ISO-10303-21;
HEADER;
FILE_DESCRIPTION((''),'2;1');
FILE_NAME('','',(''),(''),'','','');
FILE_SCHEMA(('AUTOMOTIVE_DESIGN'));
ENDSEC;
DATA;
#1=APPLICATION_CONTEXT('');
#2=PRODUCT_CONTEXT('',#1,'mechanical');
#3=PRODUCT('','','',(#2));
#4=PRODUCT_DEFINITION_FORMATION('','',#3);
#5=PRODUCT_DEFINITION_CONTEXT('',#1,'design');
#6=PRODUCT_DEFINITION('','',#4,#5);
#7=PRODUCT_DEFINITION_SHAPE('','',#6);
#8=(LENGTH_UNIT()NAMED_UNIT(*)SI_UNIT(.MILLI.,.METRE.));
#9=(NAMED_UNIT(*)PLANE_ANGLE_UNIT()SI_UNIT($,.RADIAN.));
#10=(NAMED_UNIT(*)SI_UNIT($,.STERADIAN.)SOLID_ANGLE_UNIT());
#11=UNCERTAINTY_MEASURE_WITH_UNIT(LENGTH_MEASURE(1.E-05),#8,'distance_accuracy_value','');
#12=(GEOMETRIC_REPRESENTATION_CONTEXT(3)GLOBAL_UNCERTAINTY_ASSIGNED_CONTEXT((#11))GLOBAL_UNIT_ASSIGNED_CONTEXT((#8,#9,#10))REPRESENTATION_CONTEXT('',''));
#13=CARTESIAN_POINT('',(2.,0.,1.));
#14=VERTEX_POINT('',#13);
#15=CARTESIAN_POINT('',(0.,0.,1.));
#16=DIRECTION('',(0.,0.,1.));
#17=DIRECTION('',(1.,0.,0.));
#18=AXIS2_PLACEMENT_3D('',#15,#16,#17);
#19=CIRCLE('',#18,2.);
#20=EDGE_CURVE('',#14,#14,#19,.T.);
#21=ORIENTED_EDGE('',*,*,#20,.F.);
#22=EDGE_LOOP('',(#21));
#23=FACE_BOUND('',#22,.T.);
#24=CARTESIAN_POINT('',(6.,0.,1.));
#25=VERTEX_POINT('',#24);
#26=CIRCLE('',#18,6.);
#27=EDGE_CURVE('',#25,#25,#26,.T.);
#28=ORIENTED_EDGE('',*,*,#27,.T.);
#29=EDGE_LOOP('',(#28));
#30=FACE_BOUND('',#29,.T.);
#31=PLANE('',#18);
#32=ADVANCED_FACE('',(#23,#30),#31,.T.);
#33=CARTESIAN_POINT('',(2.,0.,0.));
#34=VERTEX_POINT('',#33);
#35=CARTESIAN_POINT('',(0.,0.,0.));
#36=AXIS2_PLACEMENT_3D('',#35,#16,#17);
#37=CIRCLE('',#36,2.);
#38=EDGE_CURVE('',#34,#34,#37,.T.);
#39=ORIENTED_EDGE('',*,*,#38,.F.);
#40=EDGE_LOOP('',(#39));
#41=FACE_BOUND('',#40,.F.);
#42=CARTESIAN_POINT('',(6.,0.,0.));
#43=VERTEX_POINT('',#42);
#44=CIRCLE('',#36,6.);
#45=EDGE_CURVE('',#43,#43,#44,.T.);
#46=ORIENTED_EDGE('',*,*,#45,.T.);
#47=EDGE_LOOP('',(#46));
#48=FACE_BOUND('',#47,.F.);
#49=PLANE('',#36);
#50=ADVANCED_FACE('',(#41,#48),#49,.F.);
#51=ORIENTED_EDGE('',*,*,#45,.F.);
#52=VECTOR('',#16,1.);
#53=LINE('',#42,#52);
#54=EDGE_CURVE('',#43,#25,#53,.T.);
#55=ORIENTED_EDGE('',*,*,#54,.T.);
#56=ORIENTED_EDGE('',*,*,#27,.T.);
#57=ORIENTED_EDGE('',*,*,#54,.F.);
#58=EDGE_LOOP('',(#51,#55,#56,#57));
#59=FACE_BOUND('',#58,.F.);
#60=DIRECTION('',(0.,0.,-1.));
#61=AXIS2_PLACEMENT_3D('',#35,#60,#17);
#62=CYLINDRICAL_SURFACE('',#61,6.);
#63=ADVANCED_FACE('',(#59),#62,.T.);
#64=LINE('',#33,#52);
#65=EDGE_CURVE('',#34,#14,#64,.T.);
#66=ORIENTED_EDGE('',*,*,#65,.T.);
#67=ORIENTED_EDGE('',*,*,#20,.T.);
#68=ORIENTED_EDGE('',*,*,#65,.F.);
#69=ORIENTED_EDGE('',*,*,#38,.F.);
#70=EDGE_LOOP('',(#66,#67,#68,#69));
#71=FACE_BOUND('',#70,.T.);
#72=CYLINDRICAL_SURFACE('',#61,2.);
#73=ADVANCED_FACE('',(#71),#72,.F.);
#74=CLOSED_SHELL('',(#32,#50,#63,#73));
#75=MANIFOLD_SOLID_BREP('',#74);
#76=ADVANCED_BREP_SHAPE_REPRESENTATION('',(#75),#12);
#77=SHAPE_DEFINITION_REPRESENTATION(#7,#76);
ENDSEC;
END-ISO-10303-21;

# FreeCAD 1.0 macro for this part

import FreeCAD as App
import Part
import Sketcher

V = App.Vector
Q = App.Units.Quantity

doc = App.newDocument("Part")
params = doc.addObject("Spreadsheet::Sheet", "Params")
for row, (alias, value) in enumerate([
    ("sketch1_diameter", "12 mm"),
    ("sketch1_diameter2", "4 mm"),
    ("pad1_length", "1 mm"),
], start=1):
    params.set(f"A{row}", alias)
    params.set(f"B{row}", "=" + value)
    params.setAlias(f"B{row}", alias)

body = doc.addObject("PartDesign::Body", "Body")

# Sketch on XY plane
sketch1 = body.newObject("Sketcher::SketchObject", "Sketch")
sketch1.AttachmentSupport = (doc.getObject("XY_Plane"), [""])
sketch1.MapMode = "FlatFace"
sketch1.addGeometry([
    Part.Circle(V(0, 0, 0), V(0, 0, 1), 6),
    Part.Circle(V(0, 0, 0), V(0, 0, 1), 2),
], False)
sketch1.addConstraint([
    Sketcher.Constraint("Coincident", 0, 3, -1, 1),
    Sketcher.Constraint("Coincident", 1, 3, -1, 1),
    Sketcher.Constraint("Diameter", 0, Q("12 mm")),
    Sketcher.Constraint("Diameter", 1, Q("4 mm")),
])
sketch1.setExpression("Constraints[2]", "Params.sketch1_diameter")
sketch1.setExpression("Constraints[3]", "Params.sketch1_diameter2")
pad1 = body.newObject("PartDesign::Pad", "Pad")
pad1.Profile = sketch1
pad1.setExpression("Length", "Params.pad1_length")

doc.recompute()
